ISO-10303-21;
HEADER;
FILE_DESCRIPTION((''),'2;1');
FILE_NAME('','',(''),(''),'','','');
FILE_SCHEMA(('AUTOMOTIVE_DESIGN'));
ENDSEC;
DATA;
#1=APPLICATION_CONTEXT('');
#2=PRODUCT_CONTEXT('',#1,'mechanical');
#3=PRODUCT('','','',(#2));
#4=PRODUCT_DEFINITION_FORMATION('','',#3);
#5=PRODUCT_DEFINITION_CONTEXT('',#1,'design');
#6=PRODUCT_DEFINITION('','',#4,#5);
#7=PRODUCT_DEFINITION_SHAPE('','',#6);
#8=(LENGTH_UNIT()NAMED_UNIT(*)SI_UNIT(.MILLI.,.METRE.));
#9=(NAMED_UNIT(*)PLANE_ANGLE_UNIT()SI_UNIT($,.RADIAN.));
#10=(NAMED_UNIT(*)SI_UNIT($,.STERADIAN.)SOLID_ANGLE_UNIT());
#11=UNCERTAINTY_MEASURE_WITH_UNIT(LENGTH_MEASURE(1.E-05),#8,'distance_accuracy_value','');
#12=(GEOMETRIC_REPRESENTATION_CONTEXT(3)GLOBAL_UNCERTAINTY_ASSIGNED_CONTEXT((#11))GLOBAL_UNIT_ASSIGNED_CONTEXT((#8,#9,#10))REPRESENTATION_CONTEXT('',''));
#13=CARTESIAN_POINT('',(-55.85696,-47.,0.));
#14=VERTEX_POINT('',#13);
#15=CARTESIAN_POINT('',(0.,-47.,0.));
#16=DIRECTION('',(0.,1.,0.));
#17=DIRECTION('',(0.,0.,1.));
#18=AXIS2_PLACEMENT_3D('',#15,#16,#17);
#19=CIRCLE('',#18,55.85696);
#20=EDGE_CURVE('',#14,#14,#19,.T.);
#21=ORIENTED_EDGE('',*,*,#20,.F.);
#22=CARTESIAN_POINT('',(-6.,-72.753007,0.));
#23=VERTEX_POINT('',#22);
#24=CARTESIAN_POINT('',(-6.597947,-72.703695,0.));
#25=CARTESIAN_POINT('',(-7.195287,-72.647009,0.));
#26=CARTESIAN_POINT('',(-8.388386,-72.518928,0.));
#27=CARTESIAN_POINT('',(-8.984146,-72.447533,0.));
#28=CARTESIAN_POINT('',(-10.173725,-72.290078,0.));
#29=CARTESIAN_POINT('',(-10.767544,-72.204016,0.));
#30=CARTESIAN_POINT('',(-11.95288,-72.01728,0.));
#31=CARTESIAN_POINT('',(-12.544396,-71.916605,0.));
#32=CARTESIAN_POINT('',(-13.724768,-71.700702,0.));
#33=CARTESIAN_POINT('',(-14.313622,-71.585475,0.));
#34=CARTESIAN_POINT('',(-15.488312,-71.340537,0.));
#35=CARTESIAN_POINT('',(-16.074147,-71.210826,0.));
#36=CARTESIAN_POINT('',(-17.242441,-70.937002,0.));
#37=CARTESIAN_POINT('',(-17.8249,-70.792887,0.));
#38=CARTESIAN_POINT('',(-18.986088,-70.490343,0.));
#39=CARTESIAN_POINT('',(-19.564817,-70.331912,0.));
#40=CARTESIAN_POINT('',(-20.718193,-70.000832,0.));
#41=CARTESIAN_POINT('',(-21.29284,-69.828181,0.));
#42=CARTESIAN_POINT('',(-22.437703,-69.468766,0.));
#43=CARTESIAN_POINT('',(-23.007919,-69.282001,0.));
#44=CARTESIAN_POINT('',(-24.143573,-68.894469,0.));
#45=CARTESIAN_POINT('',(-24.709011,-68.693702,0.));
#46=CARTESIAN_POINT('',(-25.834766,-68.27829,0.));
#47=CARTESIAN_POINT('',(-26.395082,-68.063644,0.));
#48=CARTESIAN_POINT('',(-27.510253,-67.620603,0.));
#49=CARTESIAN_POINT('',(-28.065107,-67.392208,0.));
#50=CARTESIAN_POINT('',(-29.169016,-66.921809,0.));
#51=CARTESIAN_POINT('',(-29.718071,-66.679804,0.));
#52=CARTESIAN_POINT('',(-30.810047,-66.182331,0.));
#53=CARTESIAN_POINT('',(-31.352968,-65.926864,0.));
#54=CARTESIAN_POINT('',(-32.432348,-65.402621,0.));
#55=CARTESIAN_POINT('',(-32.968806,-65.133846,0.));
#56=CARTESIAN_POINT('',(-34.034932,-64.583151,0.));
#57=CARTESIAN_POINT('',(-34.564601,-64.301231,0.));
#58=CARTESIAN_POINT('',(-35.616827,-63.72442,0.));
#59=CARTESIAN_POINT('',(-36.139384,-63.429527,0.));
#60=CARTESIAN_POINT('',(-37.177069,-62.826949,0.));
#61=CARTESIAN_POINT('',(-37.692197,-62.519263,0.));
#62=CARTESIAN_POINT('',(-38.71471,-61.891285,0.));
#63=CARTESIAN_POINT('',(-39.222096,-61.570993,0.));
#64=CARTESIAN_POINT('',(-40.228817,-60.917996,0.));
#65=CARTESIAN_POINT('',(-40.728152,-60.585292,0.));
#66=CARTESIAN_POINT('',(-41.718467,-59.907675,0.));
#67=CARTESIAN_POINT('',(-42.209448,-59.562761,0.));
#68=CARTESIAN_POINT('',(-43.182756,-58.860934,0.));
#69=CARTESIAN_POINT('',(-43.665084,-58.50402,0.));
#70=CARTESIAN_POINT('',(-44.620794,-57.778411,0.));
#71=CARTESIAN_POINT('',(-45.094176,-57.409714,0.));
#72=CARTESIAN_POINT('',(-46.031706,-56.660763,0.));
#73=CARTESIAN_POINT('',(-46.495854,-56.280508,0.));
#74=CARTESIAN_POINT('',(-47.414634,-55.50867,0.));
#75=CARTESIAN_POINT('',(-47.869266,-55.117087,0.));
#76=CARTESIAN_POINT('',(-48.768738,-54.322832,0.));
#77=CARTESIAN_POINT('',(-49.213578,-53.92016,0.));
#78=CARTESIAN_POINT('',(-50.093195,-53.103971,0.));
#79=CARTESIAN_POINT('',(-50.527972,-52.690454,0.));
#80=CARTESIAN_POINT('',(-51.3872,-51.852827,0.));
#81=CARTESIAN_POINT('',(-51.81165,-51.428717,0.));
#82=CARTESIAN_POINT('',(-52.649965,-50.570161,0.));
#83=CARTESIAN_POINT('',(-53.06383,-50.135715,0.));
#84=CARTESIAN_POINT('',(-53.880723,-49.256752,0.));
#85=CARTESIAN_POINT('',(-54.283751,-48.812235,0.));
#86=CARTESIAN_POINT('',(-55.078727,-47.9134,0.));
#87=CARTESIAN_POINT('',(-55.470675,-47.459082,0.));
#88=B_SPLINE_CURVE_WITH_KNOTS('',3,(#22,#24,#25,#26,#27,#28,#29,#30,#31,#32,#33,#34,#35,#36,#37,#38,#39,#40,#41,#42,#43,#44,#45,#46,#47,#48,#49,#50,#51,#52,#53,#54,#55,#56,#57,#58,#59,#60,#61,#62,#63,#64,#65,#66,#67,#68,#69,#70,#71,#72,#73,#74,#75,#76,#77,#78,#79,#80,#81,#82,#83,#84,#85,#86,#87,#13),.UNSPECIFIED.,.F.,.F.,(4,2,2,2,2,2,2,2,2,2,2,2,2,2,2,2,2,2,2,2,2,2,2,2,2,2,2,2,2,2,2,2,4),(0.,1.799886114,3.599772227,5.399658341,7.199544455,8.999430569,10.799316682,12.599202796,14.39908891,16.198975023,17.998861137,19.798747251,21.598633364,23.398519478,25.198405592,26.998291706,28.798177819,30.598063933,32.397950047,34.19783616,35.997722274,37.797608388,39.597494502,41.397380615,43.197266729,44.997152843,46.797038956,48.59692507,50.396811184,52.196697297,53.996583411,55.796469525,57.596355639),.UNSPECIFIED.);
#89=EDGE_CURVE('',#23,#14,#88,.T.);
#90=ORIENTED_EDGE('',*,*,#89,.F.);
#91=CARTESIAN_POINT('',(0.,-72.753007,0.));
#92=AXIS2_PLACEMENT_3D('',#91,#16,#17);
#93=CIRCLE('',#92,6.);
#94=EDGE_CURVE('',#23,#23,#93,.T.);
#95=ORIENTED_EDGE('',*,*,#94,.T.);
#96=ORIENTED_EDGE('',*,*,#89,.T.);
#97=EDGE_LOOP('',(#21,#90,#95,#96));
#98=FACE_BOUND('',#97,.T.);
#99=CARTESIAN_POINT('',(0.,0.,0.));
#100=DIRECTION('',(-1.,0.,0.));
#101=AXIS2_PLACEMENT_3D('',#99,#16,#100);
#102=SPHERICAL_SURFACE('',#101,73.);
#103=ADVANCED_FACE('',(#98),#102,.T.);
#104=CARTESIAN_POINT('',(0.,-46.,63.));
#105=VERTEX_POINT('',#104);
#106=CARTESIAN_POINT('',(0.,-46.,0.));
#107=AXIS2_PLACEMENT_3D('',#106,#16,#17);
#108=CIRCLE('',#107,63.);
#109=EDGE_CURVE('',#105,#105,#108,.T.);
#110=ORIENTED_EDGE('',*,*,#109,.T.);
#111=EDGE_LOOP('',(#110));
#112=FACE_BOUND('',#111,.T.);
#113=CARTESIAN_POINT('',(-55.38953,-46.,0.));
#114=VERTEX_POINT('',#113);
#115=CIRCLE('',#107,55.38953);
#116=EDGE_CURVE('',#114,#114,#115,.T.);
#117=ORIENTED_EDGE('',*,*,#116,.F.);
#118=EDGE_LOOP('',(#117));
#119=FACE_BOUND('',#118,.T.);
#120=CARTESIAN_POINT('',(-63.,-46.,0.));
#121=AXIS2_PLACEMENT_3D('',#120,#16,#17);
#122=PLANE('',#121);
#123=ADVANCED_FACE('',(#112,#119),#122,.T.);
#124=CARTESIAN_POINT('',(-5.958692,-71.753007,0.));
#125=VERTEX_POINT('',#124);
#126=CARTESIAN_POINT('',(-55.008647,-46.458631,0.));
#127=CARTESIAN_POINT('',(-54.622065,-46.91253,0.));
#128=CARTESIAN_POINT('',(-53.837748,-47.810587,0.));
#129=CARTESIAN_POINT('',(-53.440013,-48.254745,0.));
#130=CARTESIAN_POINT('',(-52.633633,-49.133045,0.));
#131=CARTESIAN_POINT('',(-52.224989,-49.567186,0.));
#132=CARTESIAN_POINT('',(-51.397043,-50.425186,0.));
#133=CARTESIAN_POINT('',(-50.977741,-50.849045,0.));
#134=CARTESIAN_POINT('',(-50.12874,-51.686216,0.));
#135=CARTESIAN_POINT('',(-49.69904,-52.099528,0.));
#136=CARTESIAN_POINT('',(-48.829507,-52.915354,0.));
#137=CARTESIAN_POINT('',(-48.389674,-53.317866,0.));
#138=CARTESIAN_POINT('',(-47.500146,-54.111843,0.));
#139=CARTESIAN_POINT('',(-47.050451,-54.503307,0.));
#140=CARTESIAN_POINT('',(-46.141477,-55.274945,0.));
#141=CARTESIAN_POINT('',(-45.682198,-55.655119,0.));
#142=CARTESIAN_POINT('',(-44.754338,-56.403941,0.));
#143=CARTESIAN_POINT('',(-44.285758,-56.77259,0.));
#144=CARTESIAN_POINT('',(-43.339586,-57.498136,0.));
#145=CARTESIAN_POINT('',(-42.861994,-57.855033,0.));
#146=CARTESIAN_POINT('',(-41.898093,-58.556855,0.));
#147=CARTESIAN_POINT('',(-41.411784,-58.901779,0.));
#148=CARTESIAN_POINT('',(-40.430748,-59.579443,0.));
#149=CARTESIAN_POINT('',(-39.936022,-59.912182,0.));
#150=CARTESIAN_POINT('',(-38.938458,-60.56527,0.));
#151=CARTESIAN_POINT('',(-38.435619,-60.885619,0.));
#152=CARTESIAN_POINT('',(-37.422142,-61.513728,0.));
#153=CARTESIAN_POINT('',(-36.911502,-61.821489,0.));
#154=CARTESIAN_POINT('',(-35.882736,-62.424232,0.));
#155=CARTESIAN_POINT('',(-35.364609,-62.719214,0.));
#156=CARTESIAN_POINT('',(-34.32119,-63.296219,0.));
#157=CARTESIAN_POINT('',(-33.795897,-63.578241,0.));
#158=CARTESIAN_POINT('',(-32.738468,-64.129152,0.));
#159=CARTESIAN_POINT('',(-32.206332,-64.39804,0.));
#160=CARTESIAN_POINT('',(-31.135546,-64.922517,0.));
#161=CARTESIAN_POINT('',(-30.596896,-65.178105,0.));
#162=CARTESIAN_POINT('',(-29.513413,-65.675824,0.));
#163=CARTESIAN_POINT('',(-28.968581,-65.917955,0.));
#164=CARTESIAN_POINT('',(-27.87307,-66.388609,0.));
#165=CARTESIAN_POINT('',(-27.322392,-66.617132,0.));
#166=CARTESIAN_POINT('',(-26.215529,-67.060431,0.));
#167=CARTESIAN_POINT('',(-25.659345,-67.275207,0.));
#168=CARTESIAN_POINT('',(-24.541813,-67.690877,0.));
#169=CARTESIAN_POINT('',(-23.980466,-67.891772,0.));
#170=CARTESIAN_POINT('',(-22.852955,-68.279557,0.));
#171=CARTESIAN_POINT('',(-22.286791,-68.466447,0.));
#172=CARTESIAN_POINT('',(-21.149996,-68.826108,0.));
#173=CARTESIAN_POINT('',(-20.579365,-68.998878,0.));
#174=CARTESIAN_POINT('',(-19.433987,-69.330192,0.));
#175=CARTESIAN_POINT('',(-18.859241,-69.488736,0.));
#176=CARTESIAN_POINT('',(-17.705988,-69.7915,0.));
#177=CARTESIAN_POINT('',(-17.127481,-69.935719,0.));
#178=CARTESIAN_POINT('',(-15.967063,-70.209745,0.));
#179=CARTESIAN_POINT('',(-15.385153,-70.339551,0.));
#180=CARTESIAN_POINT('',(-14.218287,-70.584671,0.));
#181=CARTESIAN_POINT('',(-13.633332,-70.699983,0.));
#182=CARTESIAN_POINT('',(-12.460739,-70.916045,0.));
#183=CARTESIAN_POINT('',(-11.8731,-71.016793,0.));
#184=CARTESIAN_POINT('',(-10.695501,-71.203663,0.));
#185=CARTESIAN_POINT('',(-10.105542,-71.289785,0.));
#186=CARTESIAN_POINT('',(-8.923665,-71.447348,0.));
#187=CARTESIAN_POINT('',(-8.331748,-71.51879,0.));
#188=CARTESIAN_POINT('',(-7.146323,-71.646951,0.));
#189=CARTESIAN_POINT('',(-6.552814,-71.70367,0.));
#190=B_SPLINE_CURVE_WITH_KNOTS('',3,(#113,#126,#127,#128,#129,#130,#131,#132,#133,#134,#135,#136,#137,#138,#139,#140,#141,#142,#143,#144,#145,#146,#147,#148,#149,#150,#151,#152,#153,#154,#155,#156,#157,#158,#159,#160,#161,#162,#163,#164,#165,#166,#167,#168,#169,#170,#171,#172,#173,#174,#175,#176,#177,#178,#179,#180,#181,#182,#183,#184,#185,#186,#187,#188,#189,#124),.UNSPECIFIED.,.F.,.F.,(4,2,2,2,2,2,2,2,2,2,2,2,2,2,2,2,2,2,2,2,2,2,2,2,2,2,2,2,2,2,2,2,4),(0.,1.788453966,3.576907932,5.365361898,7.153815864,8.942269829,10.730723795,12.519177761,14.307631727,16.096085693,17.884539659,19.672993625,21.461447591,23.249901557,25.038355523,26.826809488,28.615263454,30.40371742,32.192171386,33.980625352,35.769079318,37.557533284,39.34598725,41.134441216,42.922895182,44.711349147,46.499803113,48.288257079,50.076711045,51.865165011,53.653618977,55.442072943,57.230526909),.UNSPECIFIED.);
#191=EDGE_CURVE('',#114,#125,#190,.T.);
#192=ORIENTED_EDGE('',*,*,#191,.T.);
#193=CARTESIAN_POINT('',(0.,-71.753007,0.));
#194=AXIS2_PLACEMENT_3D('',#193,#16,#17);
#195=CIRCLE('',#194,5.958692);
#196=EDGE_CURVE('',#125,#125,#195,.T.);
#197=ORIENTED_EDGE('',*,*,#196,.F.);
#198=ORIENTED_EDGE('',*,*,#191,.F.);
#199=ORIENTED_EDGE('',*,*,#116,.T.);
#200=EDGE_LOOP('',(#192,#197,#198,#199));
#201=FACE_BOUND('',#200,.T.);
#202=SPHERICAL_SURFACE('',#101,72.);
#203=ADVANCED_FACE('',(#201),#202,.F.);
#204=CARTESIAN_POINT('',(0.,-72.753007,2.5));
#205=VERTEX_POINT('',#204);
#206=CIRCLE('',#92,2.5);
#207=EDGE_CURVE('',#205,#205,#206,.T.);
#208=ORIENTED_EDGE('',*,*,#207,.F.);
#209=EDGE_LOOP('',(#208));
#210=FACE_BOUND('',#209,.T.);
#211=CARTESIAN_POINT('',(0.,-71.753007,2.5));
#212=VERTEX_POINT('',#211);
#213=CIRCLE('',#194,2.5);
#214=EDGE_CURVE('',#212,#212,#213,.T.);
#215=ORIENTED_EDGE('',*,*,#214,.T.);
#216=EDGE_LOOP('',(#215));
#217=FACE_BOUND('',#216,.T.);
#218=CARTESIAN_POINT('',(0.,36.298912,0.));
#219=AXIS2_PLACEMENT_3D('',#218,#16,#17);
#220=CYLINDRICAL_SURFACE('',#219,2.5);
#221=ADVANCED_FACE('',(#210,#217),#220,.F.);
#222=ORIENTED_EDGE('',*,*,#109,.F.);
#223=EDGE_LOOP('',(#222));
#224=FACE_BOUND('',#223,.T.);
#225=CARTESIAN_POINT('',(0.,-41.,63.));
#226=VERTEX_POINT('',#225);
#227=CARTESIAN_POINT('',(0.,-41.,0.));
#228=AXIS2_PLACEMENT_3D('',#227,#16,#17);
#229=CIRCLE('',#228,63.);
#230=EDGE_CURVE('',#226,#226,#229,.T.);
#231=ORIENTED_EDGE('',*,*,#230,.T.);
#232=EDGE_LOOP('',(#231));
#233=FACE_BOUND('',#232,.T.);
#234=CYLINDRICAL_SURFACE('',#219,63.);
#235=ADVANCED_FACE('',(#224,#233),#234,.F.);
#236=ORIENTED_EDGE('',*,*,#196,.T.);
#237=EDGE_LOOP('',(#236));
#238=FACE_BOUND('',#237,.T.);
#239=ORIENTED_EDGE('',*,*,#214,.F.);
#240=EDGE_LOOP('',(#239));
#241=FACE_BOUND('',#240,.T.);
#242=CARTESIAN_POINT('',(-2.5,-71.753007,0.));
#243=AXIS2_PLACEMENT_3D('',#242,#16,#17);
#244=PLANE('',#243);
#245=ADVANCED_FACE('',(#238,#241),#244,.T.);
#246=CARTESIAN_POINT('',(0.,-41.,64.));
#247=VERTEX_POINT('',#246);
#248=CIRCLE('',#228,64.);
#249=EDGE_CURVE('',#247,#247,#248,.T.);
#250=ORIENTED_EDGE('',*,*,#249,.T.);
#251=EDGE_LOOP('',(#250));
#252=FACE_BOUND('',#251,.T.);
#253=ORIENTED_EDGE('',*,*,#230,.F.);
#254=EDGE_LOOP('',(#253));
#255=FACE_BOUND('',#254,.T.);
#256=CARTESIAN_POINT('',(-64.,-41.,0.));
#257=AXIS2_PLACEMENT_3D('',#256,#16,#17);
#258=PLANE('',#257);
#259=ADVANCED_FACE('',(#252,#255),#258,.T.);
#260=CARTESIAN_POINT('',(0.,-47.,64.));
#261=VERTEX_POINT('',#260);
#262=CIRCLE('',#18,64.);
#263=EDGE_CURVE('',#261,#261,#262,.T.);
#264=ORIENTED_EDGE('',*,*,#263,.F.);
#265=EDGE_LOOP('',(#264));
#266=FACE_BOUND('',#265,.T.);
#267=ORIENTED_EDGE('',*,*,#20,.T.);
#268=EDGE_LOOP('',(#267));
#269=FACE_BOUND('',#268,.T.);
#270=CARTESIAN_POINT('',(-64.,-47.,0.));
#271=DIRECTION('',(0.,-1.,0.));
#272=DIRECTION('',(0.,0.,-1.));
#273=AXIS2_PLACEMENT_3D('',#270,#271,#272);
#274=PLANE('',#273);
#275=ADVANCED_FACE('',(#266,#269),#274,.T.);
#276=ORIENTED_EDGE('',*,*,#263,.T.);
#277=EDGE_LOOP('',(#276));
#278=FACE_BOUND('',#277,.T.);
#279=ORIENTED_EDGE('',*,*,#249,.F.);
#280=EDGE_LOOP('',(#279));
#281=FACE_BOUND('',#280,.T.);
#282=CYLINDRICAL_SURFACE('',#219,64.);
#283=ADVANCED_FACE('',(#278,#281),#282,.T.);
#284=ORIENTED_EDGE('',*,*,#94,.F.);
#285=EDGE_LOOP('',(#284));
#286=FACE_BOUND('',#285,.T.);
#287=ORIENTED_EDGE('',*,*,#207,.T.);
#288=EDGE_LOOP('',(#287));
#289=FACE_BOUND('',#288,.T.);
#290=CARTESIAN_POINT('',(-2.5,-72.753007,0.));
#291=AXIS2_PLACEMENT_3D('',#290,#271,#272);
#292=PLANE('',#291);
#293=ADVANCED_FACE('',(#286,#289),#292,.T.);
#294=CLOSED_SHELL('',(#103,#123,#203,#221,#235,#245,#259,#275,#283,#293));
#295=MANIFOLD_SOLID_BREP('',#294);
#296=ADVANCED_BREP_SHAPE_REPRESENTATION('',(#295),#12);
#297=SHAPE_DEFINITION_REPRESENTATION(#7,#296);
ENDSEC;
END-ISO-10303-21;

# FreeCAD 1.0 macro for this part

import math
import FreeCAD as App
import Part
import Sketcher

doc = App.newDocument("Part")
params = doc.addObject("Spreadsheet::Sheet", "Params")
for row, (alias, value) in enumerate([
    ("sketch1_radius", "72 mm"),
    ("sketch1_radius2", "73 mm"),
    ("sketch1_width", "1 mm"),
    ("sketch1_height", "5 mm"),
    ("sketch1_height2", "6 mm"),
    ("revolution_angle", "360 deg"),
], start=1):
    params.set(f"A{row}", alias)
    params.set(f"B{row}", "=" + value)
    params.setAlias(f"B{row}", alias)

body = doc.addObject("PartDesign::Body", "Body")

# Sketch on XY plane
sketch1 = body.newObject("Sketcher::SketchObject", "Sketch")
sketch1.AttachmentSupport = (doc.getObject("XY_Plane"), [""])
sketch1.MapMode = "FlatFace"
sketch1.addGeometry(Part.LineSegment(App.Vector(-6, -72.8, 0), App.Vector(-2.5, -72.8, 0)), False)
sketch1.addGeometry(Part.LineSegment(App.Vector(-2.5, -72.8, 0), App.Vector(-2.5, -71.8, 0)), False)
sketch1.addGeometry(Part.LineSegment(App.Vector(-2.5, -71.8, 0), App.Vector(-6, -71.8, 0)), False)
sketch1.addGeometry(Part.ArcOfCircle(Part.Circle(App.Vector(0, 0, 0), App.Vector(0, 0, 1), 72), math.radians(-140), math.radians(-95)), False)
sketch1.addGeometry(Part.LineSegment(App.Vector(-55.4, -46, 0), App.Vector(-63, -46, 0)), False)
sketch1.addGeometry(Part.LineSegment(App.Vector(-63, -46, 0), App.Vector(-63, -41, 0)), False)
sketch1.addGeometry(Part.LineSegment(App.Vector(-63, -41, 0), App.Vector(-64, -41, 0)), False)
sketch1.addGeometry(Part.LineSegment(App.Vector(-64, -41, 0), App.Vector(-64, -47, 0)), False)
sketch1.addGeometry(Part.LineSegment(App.Vector(-64, -47, 0), App.Vector(-55.9, -47, 0)), False)
sketch1.addGeometry(Part.ArcOfCircle(Part.Circle(App.Vector(0, 0, 0), App.Vector(0, 0, 1), 73), math.radians(-140), math.radians(-95)), False)
sketch1.addConstraint(Sketcher.Constraint("Coincident", 0, 2, 1, 1))
sketch1.addConstraint(Sketcher.Constraint("Coincident", 1, 2, 2, 1))
sketch1.addConstraint(Sketcher.Constraint("Coincident", 2, 2, 3, 2))
sketch1.addConstraint(Sketcher.Constraint("Coincident", 3, 1, 4, 1))
sketch1.addConstraint(Sketcher.Constraint("Coincident", 4, 2, 5, 1))
sketch1.addConstraint(Sketcher.Constraint("Coincident", 5, 2, 6, 1))
sketch1.addConstraint(Sketcher.Constraint("Coincident", 6, 2, 7, 1))
sketch1.addConstraint(Sketcher.Constraint("Coincident", 7, 2, 8, 1))
sketch1.addConstraint(Sketcher.Constraint("Coincident", 8, 2, 9, 1))
sketch1.addConstraint(Sketcher.Constraint("Coincident", 9, 2, 0, 1))
sketch1.addConstraint(Sketcher.Constraint("Horizontal", 0))
sketch1.addConstraint(Sketcher.Constraint("Vertical", 1))
sketch1.addConstraint(Sketcher.Constraint("Horizontal", 2))
sketch1.addConstraint(Sketcher.Constraint("Horizontal", 4))
sketch1.addConstraint(Sketcher.Constraint("Vertical", 5))
sketch1.addConstraint(Sketcher.Constraint("Horizontal", 6))
sketch1.addConstraint(Sketcher.Constraint("Vertical", 7))
sketch1.addConstraint(Sketcher.Constraint("Horizontal", 8))
sketch1.addConstraint(Sketcher.Constraint("Coincident", 3, 3, -1, 1))
sketch1.addConstraint(Sketcher.Constraint("Coincident", 9, 3, -1, 1))
sketch1.addConstraint(Sketcher.Constraint("Equal", 6, 1))
sketch1.addConstraint(Sketcher.Constraint("Radius", 3, 72.0))
sketch1.addConstraint(Sketcher.Constraint("Radius", 9, 73.0))
sketch1.addConstraint(Sketcher.Constraint("DistanceX", 6, 2, 6, 1, 1.0))
sketch1.addConstraint(Sketcher.Constraint("DistanceY", 5, 1, 5, 2, 5.0))
sketch1.addConstraint(Sketcher.Constraint("DistanceY", 7, 2, 7, 1, 6.0))
sketch1.addConstraint(Sketcher.Constraint("DistanceX", 0, 1, 0, 2, 3.5))
sketch1.addConstraint(Sketcher.Constraint("DistanceY", 3, 1, -1, 1, 46.0))
sketch1.addConstraint(Sketcher.Constraint("DistanceX", 4, 2, -1, 1, 63.0))
sketch1.addConstraint(Sketcher.Constraint("DistanceX", 9, 2, -1, 1, 6.0))
sketch1.setExpression("Constraints[21]", "Params.sketch1_radius")
sketch1.setExpression("Constraints[22]", "Params.sketch1_radius2")
sketch1.setExpression("Constraints[23]", "Params.sketch1_width")
sketch1.setExpression("Constraints[24]", "Params.sketch1_height")
sketch1.setExpression("Constraints[25]", "Params.sketch1_height2")
revolution = body.newObject("PartDesign::Revolution", "Revolution")
revolution.Profile = sketch1
revolution.ReferenceAxis = (sketch1, ["V_Axis"])
revolution.setExpression("Angle", "Params.revolution_angle")

doc.recompute()
